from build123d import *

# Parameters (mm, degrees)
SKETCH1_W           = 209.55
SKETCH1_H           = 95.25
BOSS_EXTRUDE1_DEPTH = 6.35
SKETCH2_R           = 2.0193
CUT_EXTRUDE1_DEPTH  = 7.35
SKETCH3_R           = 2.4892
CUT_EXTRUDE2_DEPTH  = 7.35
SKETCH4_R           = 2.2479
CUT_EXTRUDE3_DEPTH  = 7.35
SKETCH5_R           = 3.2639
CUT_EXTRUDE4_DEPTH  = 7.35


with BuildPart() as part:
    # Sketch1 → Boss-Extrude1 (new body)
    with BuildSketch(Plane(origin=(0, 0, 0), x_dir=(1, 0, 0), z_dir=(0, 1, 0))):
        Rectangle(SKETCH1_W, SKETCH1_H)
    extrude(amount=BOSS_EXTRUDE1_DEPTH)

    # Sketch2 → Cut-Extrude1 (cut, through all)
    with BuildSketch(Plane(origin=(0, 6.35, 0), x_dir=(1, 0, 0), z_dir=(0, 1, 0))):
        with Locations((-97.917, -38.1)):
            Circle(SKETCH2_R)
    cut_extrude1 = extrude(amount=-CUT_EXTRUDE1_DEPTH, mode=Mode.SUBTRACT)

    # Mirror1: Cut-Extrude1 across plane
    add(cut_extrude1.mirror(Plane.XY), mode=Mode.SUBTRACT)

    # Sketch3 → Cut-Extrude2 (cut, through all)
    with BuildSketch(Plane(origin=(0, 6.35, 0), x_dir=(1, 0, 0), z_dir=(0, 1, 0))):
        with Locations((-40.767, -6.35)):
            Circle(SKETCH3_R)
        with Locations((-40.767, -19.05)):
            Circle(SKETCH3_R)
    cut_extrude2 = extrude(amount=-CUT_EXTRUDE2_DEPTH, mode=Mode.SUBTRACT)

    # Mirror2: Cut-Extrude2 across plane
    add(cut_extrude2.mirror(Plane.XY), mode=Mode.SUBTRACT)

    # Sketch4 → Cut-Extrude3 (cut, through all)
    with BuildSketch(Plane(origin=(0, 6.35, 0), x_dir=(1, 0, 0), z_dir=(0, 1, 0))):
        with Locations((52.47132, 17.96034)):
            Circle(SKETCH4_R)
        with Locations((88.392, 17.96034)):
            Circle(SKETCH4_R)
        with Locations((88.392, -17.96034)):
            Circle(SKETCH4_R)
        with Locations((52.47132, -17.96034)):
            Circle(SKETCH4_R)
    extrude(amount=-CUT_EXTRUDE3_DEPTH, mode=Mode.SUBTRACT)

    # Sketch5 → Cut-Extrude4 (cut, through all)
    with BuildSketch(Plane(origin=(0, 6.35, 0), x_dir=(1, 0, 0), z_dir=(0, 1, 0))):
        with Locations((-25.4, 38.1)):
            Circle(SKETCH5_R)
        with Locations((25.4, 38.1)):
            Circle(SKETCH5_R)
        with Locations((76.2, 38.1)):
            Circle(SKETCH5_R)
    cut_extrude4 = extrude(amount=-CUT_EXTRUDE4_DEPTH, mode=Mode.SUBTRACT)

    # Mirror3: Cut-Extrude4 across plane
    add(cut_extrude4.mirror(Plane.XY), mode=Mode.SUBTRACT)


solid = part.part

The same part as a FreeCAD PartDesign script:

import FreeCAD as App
import Part
import Sketcher
from FreeCAD import Vector
Q = App.Units.Quantity

doc = App.newDocument("Part")
body = doc.addObject("PartDesign::Body", "Body")

# Sketch on XZ plane
sketch1 = doc.addObject("Sketcher::SketchObject", "Sketch")
body.addObject(sketch1)
sketch1.AttachmentSupport = (doc.XZ_Plane, [""])
sketch1.MapMode = "FlatFace"
sketch1.addGeometry([
    Part.LineSegment(Vector(-105, -48, 0), Vector(-105, 48, 0)),
    Part.LineSegment(Vector(-105, 48, 0), Vector(105, 48, 0)),
    Part.LineSegment(Vector(105, 48, 0), Vector(105, -48, 0)),
    Part.LineSegment(Vector(105, -48, 0), Vector(-105, -48, 0)),
], False)
sketch1.addConstraint([
    Sketcher.Constraint("Coincident", 0, 2, 1, 1),
    Sketcher.Constraint("Coincident", 1, 2, 2, 1),
    Sketcher.Constraint("Coincident", 2, 2, 3, 1),
    Sketcher.Constraint("Coincident", 3, 2, 0, 1),
    Sketcher.Constraint("Vertical", 0),
    Sketcher.Constraint("Horizontal", 1),
    Sketcher.Constraint("Vertical", 2),
    Sketcher.Constraint("Horizontal", 3),
    Sketcher.Constraint("Symmetric", 0, 2, 2, 2, -1, 1),
    Sketcher.Constraint("DistanceX", 1, 1, 1, 2, Q("8.25 in")),
    Sketcher.Constraint("DistanceY", 0, 1, 0, 2, Q("3.75 in")),
])
pad1 = doc.addObject("PartDesign::Pad", "Pad")
body.addObject(pad1)
pad1.Profile = sketch1
pad1.Length = Q("0.25 in")
pad1.Reversed = True

# Sketch on XZ plane
sketch2 = doc.addObject("Sketcher::SketchObject", "Sketch001")
body.addObject(sketch2)
sketch2.AttachmentSupport = (doc.XZ_Plane, [""])
sketch2.MapMode = "FlatFace"
sketch2.AttachmentOffset = App.Placement(Vector(0, 0, -0.25 * 25.4), App.Rotation())
sketch2.addGeometry(Part.Circle(Vector(-97.9, 38.1, 0), Vector(0, 0, 1), 2), False)
sketch2.addConstraint([
    Sketcher.Constraint("Diameter", 0, Q("0.159 in")),
    Sketcher.Constraint("DistanceY", -1, 1, 0, 3, Q("1.5 in")),
    Sketcher.Constraint("DistanceX", 0, 3, -1, 1, Q("3.855 in")),
])
pocket1 = doc.addObject("PartDesign::Pocket", "Pocket")
body.addObject(pocket1)
pocket1.Profile = sketch2
pocket1.Type = "ThroughAll"
pocket1.Reversed = True
doc.recompute()

mirrored = doc.addObject("PartDesign::Mirrored", "Mirrored")
body.addObject(mirrored)
mirrored.Originals = [pocket1]
mirrored.MirrorPlane = (doc.XY_Plane, [""])
body.Tip = mirrored

# Sketch on XZ plane
sketch3 = doc.addObject("Sketcher::SketchObject", "Sketch002")
body.addObject(sketch3)
sketch3.AttachmentSupport = (doc.XZ_Plane, [""])
sketch3.MapMode = "FlatFace"
sketch3.AttachmentOffset = App.Placement(Vector(0, 0, -0.25 * 25.4), App.Rotation())
sketch3.addGeometry([
    Part.Circle(Vector(-40.8, 6.3, 0), Vector(0, 0, 1), 2.5),
    Part.Circle(Vector(-40.8, 19.1, 0), Vector(0, 0, 1), 2.5),
], False)
sketch3.addConstraint([
    Sketcher.Constraint("Equal", 0, 1),
    Sketcher.Constraint("Vertical", 0, 3, 1, 3),
    Sketcher.Constraint("Diameter", 0, Q("0.196 in")),
    Sketcher.Constraint("DistanceY", 0, 3, 1, 3, Q("0.5 in")),
    Sketcher.Constraint("DistanceY", -1, 1, 0, 3, Q("0.25 in")),
    Sketcher.Constraint("DistanceX", 0, 3, -1, 1, Q("1.605 in")),
])
pocket2 = doc.addObject("PartDesign::Pocket", "Pocket001")
body.addObject(pocket2)
pocket2.Profile = sketch3
pocket2.Type = "ThroughAll"
pocket2.Reversed = True
doc.recompute()

mirrored2 = doc.addObject("PartDesign::Mirrored", "Mirrored001")
body.addObject(mirrored2)
mirrored2.Originals = [pocket2]
mirrored2.MirrorPlane = (doc.XY_Plane, [""])
body.Tip = mirrored2

# Sketch on XZ plane
sketch4 = doc.addObject("Sketcher::SketchObject", "Sketch003")
body.addObject(sketch4)
sketch4.AttachmentSupport = (doc.XZ_Plane, [""])
sketch4.MapMode = "FlatFace"
sketch4.AttachmentOffset = App.Placement(Vector(0, 0, -0.25 * 25.4), App.Rotation())
sketch4.addGeometry([
    Part.Circle(Vector(52.5, -18, 0), Vector(0, 0, 1), 2.2),
    Part.Circle(Vector(88.4, -18, 0), Vector(0, 0, 1), 2.2),
    Part.Circle(Vector(88.4, 18, 0), Vector(0, 0, 1), 2.2),
    Part.Circle(Vector(52.5, 18, 0), Vector(0, 0, 1), 2.2),
], False)
sketch4.addConstraint([
    Sketcher.Constraint("Equal", 0, 1),
    Sketcher.Constraint("Equal", 1, 2),
    Sketcher.Constraint("Equal", 2, 3),
    Sketcher.Constraint("Symmetric", 1, 3, 2, 3, -1),
    Sketcher.Constraint("Symmetric", 0, 3, 3, 3, -1),
    Sketcher.Constraint("Horizontal", 0, 3, 1, 3),
    Sketcher.Constraint("Diameter", 0, Q("0.177 in")),
    Sketcher.Constraint("DistanceX", -1, 1, 1, 3, Q("3.48 in")),
    Sketcher.Constraint("DistanceX", -1, 1, 0, 3, Q("2.0658 in")),
    Sketcher.Constraint("DistanceY", 0, 3, -1, 1, Q("0.7071 in")),
])
pocket3 = doc.addObject("PartDesign::Pocket", "Pocket002")
body.addObject(pocket3)
pocket3.Profile = sketch4
pocket3.Type = "ThroughAll"
pocket3.Reversed = True

# Sketch on XZ plane
sketch5 = doc.addObject("Sketcher::SketchObject", "Sketch004")
body.addObject(sketch5)
sketch5.AttachmentSupport = (doc.XZ_Plane, [""])
sketch5.MapMode = "FlatFace"
sketch5.AttachmentOffset = App.Placement(Vector(0, 0, -0.25 * 25.4), App.Rotation())
sketch5.addGeometry([
    Part.Circle(Vector(-25.4, -38.1, 0), Vector(0, 0, 1), 3.3),
    Part.Circle(Vector(25.4, -38.1, 0), Vector(0, 0, 1), 3.3),
    Part.Circle(Vector(76.2, -38.1, 0), Vector(0, 0, 1), 3.3),
], False)
sketch5.addConstraint([
    Sketcher.Constraint("Equal", 0, 1),
    Sketcher.Constraint("Equal", 1, 2),
    Sketcher.Constraint("Symmetric", 0, 3, 1, 3, -2),
    Sketcher.Constraint("Horizontal", 1, 3, 2, 3),
    Sketcher.Constraint("Diameter", 0, Q("0.257 in")),
    Sketcher.Constraint("DistanceX", 0, 3, -1, 1, Q("1 in")),
    Sketcher.Constraint("DistanceX", -1, 1, 2, 3, Q("3 in")),
    Sketcher.Constraint("DistanceY", 0, 3, -1, 1, Q("1.5 in")),
])
pocket4 = doc.addObject("PartDesign::Pocket", "Pocket003")
body.addObject(pocket4)
pocket4.Profile = sketch5
pocket4.Type = "ThroughAll"
pocket4.Reversed = True
doc.recompute()

mirrored3 = doc.addObject("PartDesign::Mirrored", "Mirrored002")
body.addObject(mirrored3)
mirrored3.Originals = [pocket4]
mirrored3.MirrorPlane = (doc.XY_Plane, [""])
body.Tip = mirrored3

doc.recompute()
